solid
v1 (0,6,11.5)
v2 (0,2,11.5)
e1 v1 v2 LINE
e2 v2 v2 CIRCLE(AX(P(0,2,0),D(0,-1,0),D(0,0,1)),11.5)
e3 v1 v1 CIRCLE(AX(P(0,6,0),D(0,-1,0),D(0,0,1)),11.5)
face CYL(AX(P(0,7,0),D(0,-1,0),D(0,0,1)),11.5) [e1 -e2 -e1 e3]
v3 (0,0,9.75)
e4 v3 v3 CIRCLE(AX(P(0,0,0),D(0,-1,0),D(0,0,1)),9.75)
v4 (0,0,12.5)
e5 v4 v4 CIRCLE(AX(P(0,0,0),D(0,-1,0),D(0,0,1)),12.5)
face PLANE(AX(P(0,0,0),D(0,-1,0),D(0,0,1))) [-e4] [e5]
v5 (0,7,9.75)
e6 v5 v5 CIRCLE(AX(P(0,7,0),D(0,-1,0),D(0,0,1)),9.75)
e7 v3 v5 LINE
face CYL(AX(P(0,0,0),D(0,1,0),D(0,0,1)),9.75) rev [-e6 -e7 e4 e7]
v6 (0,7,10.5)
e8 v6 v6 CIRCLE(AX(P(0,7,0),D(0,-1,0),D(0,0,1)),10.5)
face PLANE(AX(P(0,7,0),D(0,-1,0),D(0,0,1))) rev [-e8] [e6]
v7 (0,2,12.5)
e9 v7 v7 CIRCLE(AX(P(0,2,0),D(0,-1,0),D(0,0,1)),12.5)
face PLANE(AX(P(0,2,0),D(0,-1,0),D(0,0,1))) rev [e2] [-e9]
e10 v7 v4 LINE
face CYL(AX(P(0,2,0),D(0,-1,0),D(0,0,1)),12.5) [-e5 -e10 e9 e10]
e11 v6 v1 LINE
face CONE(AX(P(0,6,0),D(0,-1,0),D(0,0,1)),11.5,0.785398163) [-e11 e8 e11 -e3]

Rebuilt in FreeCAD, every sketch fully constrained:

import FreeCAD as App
import Part
import Sketcher
from FreeCAD import Vector


def edges_at(feature, points):
    """Names of the edges that pass closest to the given points."""
    edges = feature.Shape.Edges
    near = lambda p: min(range(len(edges)), key=lambda i: edges[i].distToShape(Part.Vertex(*p))[0])
    return sorted({f"Edge{near(p) + 1}" for p in points})


def add_polygon(sketch, points):
    """Adds a closed chain of lines whose ends are joined by coincident constraints."""
    first, n = sketch.GeometryCount, len(points)
    for a, b in zip(points, points[1:] + points[:1]):
        sketch.addGeometry(Part.LineSegment(App.Vector(*a, 0), App.Vector(*b, 0)), False)
    for i in range(n):
        sketch.addConstraint(Sketcher.Constraint("Coincident", first + i, 2, first + (i + 1) % n, 1))

doc = App.newDocument("Part")
body = doc.addObject("PartDesign::Body", "Body")

# Sketch on YZ plane
sketch1 = body.newObject("Sketcher::SketchObject", "Sketch")
sketch1.AttachmentSupport = (doc.getObject("YZ_Plane"), [""])
sketch1.MapMode = "FlatFace"
add_polygon(sketch1, [(0, 9.75), (7, 9.75), (7, 11.5), (2, 11.5), (2, 12.5), (0, 12.5)])  # lines 0-5
sketch1.addConstraint([
    Sketcher.Constraint("Horizontal", 0),
    Sketcher.Constraint("Vertical", 1),
    Sketcher.Constraint("Horizontal", 2),
    Sketcher.Constraint("Vertical", 3),
    Sketcher.Constraint("Horizontal", 4),
    Sketcher.Constraint("Vertical", 5),
    Sketcher.Constraint("PointOnObject", 4, 2, -2),
    Sketcher.Constraint("DistanceX", 0, 1, 0, 2, 7.0),
    Sketcher.Constraint("DistanceX", 2, 2, 2, 1, 5.0),
    Sketcher.Constraint("DistanceY", 3, 1, 3, 2, 1.0),
    Sketcher.Constraint("DistanceY", 1, 1, 1, 2, 1.75),
    Sketcher.Constraint("DistanceY", -1, 1, 1, 2, 11.5),
])
revolution = body.newObject("PartDesign::Revolution", "Revolution")
revolution.Profile = sketch1
revolution.ReferenceAxis = (sketch1, ["H_Axis"])
revolution.Angle = 360
doc.recompute()

chamfer = body.newObject("PartDesign::Chamfer", "Chamfer")
chamfer.Base = (revolution, edges_at(revolution, [(0, 7, -11.5)]))
chamfer.Size = 1

doc.recompute()
